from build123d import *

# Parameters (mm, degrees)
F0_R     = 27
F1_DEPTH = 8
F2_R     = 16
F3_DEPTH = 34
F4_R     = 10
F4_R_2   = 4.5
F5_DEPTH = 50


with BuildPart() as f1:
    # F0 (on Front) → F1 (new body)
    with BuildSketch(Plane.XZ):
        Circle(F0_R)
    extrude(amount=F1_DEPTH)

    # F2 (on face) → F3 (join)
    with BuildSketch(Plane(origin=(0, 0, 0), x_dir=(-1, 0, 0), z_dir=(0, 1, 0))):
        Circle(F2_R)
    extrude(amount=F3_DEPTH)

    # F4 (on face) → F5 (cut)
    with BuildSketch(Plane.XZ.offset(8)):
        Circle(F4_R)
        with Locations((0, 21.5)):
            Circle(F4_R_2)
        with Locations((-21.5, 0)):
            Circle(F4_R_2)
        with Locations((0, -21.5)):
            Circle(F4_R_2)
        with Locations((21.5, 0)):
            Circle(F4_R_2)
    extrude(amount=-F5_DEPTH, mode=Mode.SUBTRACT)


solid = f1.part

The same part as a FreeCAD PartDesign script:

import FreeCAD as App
import Part
import Sketcher

V = App.Vector

doc = App.newDocument("Part")
body = doc.addObject("PartDesign::Body", "Body")

# Sketch on XZ plane
sketch1 = doc.addObject("Sketcher::SketchObject", "Sketch")
body.addObject(sketch1)
sketch1.AttachmentSupport = (doc.XZ_Plane, [""])
sketch1.MapMode = "FlatFace"
sketch1.addGeometry(Part.Circle(V(0, 0, 0), V(0, 0, 1), 27), False)
sketch1.addConstraint(Sketcher.Constraint("Coincident", 0, 3, -1, 1))
sketch1.addConstraint(Sketcher.Constraint("Diameter", 0, 54.0))
pad1 = doc.addObject("PartDesign::Pad", "Pad")
body.addObject(pad1)
pad1.Profile = sketch1
pad1.Length = 8

# Sketch on XZ plane
sketch2 = doc.addObject("Sketcher::SketchObject", "Sketch001")
body.addObject(sketch2)
sketch2.AttachmentSupport = (doc.XZ_Plane, [""])
sketch2.MapMode = "FlatFace"
sketch2.addGeometry(Part.Circle(V(0, 0, 0), V(0, 0, 1), 16), False)
sketch2.addConstraint(Sketcher.Constraint("Coincident", 0, 3, -1, 1))
sketch2.addConstraint(Sketcher.Constraint("Diameter", 0, 32.0))
pad2 = doc.addObject("PartDesign::Pad", "Pad001")
body.addObject(pad2)
pad2.Profile = sketch2
pad2.Length = 34
pad2.Reversed = True

# Sketch on XZ plane
sketch3 = doc.addObject("Sketcher::SketchObject", "Sketch002")
body.addObject(sketch3)
sketch3.AttachmentSupport = (doc.XZ_Plane, [""])
sketch3.MapMode = "FlatFace"
sketch3.AttachmentOffset = App.Placement(V(0, 0, 8), App.Rotation())
sketch3.addGeometry(Part.Circle(V(0, 0, 0), V(0, 0, 1), 10), False)
sketch3.addGeometry(Part.Circle(V(0, 21.5, 0), V(0, 0, 1), 4.5), False)
sketch3.addGeometry(Part.Circle(V(-21.5, 0, 0), V(0, 0, 1), 4.5), False)
sketch3.addGeometry(Part.Circle(V(0, -21.5, 0), V(0, 0, 1), 4.5), False)
sketch3.addGeometry(Part.Circle(V(21.5, 0, 0), V(0, 0, 1), 4.5), False)
sketch3.addConstraint(Sketcher.Constraint("Coincident", 0, 3, -1, 1))
sketch3.addConstraint(Sketcher.Constraint("Equal", 1, 2))
sketch3.addConstraint(Sketcher.Constraint("Equal", 2, 3))
sketch3.addConstraint(Sketcher.Constraint("Equal", 3, 4))
sketch3.addConstraint(Sketcher.Constraint("Symmetric", 1, 3, 3, 3, -1, 1))
sketch3.addConstraint(Sketcher.Constraint("Symmetric", 2, 3, 4, 3, -1, 1))
sketch3.addConstraint(Sketcher.Constraint("PointOnObject", 1, 3, -2))
sketch3.addConstraint(Sketcher.Constraint("PointOnObject", 2, 3, -1))
sketch3.addConstraint(Sketcher.Constraint("Diameter", 0, 20.0))
sketch3.addConstraint(Sketcher.Constraint("Diameter", 1, 9.0))
sketch3.addConstraint(Sketcher.Constraint("DistanceY", 3, 3, 1, 3, 43.0))
sketch3.addConstraint(Sketcher.Constraint("DistanceX", 2, 3, 4, 3, 43.0))
pocket1 = doc.addObject("PartDesign::Pocket", "Pocket")
body.addObject(pocket1)
pocket1.Profile = sketch3
pocket1.Length = 50

doc.recompute()
